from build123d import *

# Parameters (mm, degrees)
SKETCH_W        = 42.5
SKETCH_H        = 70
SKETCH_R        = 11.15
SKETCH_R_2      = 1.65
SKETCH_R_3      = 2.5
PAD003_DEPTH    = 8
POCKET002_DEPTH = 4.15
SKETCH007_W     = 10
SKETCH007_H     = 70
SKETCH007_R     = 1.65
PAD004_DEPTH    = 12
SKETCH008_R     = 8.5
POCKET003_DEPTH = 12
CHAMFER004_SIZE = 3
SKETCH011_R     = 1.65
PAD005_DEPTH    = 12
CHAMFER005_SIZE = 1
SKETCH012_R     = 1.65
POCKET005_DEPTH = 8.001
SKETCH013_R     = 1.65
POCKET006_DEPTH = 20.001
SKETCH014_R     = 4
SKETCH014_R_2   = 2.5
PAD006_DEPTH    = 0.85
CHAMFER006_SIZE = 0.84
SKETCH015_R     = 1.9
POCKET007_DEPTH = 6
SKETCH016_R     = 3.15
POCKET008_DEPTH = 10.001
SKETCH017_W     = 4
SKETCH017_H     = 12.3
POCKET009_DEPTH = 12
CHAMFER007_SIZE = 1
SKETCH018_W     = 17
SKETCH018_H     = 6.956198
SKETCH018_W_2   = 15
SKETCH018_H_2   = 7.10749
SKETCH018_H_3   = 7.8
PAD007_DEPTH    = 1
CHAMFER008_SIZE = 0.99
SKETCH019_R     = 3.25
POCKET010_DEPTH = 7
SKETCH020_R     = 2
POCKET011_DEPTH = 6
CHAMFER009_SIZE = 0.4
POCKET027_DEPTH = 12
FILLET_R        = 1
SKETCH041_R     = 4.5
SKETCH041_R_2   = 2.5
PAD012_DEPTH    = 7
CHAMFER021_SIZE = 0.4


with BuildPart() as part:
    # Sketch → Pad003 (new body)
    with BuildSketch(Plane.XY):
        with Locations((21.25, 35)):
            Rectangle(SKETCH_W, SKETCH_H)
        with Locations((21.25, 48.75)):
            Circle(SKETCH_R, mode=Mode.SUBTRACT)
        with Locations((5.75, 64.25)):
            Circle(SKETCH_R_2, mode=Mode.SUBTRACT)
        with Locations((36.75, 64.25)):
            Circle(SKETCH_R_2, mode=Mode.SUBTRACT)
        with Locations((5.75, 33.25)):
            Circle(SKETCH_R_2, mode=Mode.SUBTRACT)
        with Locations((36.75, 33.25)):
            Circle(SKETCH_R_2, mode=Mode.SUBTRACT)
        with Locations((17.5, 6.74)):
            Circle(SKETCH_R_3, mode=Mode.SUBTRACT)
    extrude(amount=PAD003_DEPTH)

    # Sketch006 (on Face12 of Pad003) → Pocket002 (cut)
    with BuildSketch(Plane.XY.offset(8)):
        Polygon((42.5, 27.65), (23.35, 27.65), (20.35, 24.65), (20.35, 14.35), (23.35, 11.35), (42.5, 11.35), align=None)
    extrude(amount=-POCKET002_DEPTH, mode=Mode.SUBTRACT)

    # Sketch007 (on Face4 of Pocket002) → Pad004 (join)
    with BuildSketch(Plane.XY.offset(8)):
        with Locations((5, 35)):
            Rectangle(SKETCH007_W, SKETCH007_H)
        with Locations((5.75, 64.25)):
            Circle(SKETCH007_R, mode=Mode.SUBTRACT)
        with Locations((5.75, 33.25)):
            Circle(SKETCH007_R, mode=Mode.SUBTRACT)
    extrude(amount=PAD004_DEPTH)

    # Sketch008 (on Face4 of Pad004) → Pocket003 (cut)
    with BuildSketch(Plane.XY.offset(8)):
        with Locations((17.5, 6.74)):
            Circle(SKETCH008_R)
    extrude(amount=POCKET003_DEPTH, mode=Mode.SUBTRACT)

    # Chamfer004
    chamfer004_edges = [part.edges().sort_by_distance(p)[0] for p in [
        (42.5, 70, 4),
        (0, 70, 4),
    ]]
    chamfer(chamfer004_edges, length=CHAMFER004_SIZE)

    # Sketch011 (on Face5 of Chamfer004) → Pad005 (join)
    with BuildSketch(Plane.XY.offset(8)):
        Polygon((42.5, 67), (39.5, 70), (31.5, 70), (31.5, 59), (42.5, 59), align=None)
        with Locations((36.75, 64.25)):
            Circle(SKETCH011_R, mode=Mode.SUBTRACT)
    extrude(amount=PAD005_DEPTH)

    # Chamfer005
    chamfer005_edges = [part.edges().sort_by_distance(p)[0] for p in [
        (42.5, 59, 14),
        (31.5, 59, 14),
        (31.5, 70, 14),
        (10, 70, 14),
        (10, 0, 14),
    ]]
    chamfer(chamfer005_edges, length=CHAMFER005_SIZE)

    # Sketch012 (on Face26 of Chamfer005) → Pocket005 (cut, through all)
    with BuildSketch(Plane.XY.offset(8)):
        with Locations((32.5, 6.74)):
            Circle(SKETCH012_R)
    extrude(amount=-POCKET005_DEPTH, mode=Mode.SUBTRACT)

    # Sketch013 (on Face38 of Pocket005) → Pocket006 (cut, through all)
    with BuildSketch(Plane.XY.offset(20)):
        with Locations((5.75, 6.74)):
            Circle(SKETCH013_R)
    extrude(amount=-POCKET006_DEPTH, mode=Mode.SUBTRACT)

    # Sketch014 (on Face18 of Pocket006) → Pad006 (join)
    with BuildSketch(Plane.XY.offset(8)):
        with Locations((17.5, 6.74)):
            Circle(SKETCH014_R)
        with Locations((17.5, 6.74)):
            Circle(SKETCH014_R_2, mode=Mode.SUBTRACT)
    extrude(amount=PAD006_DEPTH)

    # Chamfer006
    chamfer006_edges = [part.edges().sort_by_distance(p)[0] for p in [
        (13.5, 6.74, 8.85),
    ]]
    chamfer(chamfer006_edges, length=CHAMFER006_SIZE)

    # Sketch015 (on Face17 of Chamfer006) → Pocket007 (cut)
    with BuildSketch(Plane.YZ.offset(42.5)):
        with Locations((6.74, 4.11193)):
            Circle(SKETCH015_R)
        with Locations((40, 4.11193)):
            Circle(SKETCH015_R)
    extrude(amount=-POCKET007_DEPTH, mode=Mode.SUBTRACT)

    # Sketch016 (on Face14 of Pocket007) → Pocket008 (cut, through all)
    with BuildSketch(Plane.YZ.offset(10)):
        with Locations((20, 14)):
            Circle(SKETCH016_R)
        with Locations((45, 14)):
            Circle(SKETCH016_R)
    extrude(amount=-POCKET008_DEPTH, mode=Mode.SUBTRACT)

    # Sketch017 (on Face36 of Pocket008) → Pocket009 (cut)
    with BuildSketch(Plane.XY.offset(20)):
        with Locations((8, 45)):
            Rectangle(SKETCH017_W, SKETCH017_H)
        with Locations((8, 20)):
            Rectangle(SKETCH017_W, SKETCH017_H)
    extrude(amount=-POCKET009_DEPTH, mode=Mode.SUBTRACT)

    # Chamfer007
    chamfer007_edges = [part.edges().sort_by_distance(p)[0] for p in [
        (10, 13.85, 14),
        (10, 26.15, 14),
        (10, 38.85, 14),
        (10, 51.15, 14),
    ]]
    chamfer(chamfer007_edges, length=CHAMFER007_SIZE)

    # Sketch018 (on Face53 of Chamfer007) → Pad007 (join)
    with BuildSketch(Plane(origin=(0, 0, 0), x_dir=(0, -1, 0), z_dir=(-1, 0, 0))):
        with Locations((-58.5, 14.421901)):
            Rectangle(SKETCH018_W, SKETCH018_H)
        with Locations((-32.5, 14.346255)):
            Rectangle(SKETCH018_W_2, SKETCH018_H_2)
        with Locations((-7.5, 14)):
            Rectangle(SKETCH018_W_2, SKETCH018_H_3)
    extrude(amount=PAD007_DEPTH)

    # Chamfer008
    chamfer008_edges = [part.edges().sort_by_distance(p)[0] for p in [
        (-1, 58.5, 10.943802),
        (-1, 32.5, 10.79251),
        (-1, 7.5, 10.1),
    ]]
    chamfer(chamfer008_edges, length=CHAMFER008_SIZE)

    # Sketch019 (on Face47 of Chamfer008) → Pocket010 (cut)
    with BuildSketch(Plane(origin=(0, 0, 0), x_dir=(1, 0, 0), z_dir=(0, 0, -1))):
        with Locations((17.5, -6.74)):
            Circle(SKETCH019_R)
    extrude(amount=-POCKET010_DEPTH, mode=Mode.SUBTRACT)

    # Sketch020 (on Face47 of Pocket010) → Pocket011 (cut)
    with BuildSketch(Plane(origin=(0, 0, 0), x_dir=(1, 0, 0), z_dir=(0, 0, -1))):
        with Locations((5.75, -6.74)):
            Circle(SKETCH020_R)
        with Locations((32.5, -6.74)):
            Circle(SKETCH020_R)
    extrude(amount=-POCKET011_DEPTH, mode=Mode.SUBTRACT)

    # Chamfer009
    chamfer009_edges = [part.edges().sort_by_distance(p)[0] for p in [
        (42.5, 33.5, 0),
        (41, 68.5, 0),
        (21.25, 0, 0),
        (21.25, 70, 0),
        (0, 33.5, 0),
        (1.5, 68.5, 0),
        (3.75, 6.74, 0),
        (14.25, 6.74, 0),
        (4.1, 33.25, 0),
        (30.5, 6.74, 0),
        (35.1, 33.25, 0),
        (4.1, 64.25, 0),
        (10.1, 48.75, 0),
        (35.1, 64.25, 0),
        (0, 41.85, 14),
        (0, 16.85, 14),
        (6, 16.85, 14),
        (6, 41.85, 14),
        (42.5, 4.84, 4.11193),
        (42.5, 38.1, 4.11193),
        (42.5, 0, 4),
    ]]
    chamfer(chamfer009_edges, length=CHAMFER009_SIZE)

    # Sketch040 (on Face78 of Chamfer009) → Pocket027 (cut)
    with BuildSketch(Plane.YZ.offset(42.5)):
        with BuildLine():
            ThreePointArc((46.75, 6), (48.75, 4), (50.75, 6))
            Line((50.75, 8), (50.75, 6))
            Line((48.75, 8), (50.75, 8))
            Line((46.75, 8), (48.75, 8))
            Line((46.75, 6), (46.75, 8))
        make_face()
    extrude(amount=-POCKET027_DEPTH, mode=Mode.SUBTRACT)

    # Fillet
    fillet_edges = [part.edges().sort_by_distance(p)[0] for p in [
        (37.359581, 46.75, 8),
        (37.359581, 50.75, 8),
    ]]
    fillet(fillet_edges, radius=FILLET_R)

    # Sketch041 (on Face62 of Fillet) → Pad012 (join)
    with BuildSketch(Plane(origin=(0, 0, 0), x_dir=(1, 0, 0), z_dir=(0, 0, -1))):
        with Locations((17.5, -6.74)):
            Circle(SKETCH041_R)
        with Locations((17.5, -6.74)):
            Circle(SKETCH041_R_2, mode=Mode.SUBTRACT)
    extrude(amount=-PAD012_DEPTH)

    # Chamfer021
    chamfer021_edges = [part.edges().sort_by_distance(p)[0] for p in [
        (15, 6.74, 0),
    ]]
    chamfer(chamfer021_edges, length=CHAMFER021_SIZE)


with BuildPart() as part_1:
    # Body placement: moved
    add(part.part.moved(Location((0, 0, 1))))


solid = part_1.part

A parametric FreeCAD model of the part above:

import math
import FreeCAD as App
import Part
import Sketcher
from FreeCAD import Vector
Q = App.Units.Quantity


def edges_at(feature, points):
    """Names of the edges that pass closest to the given points."""
    edges = feature.Shape.Edges
    near = lambda p: min(range(len(edges)), key=lambda i: edges[i].distToShape(Part.Vertex(*p))[0])
    return sorted({f"Edge{near(p) + 1}" for p in points})

doc = App.newDocument("Part")
body = doc.addObject("PartDesign::Body", "Body")

sketch1 = body.newObject("Sketcher::SketchObject", "Sketch")
sketch1.AttachmentSupport = (doc.getObject("XY_Plane"), [""])
sketch1.MapMode = "FlatFace"
sketch1.addGeometry([
    Part.LineSegment(Vector(0, 70, 0), Vector(0, 0, 0)),
    Part.LineSegment(Vector(0, 0, 0), Vector(42.5, 0, 0)),
    Part.LineSegment(Vector(42.5, 0, 0), Vector(42.5, 70, 0)),
    Part.LineSegment(Vector(42.5, 70, 0), Vector(0, 70, 0)),
    Part.Circle(Vector(17.5, 6.74, 0), Vector(0, 0, 1), 2.5),
    Part.Circle(Vector(5.75, 33.25, 0), Vector(0, 0, 1), 1.65),
    Part.Circle(Vector(36.75, 33.25, 0), Vector(0, 0, 1), 1.65),
    Part.Circle(Vector(5.75, 64.25, 0), Vector(0, 0, 1), 1.65),
    Part.Circle(Vector(21.25, 48.75, 0), Vector(0, 0, 1), 11.15),
    Part.Circle(Vector(36.75, 64.25, 0), Vector(0, 0, 1), 1.65),
], False)
sketch1.addConstraint([
    Sketcher.Constraint("Coincident", 0, 2, 1, 1),
    Sketcher.Constraint("Coincident", 1, 2, 2, 1),
    Sketcher.Constraint("Coincident", 2, 2, 3, 1),
    Sketcher.Constraint("Coincident", 3, 2, 0, 1),
    Sketcher.Constraint("Vertical", 0),
    Sketcher.Constraint("Horizontal", 1),
    Sketcher.Constraint("Vertical", 2),
    Sketcher.Constraint("Horizontal", 3),
    Sketcher.Constraint("Coincident", 0, 2, -1, 1),
    Sketcher.Constraint("Equal", 5, 6),
    Sketcher.Constraint("Equal", 6, 7),
    Sketcher.Constraint("Equal", 7, 9),
    Sketcher.Constraint("Horizontal", 5, 3, 6, 3),
    Sketcher.Constraint("Horizontal", 7, 3, 9, 3),
    Sketcher.Constraint("Vertical", 5, 3, 7, 3),
    Sketcher.Constraint("Vertical", 6, 3, 9, 3),
    Sketcher.Constraint("Diameter", 4, Q("5 mm")),
    Sketcher.Constraint("Diameter", 5, Q("3.3 mm")),
    Sketcher.Constraint("Diameter", 8, Q("22.3 mm")),
    Sketcher.Constraint("DistanceY", 0, 2, 0, 1, Q("70 mm")),
    Sketcher.Constraint("DistanceX", 1, 1, 1, 2, Q("42.5 mm")),
    Sketcher.Constraint("DistanceX", 5, 3, 6, 3, Q("31 mm")),
    Sketcher.Constraint("DistanceY", 5, 3, 7, 3, Q("31 mm")),
    Sketcher.Constraint("DistanceX", 4, 3, 1, 2, Q("25 mm")),
    Sketcher.Constraint("DistanceX", 5, 3, 8, 3, Q("15.5 mm")),
    Sketcher.Constraint("DistanceY", 5, 3, 8, 3, Q("15.5 mm")),
    Sketcher.Constraint("DistanceY", -1, 1, 4, 3, Q("6.74 mm")),
    Sketcher.Constraint("DistanceX", -1, 1, 5, 3, Q("5.75 mm")),
    Sketcher.Constraint("DistanceY", -1, 1, 5, 3, Q("33.25 mm")),
])
pad1 = body.newObject("PartDesign::Pad", "Pad")
pad1.Profile = sketch1
pad1.Length = 8

sketch2 = body.newObject("Sketcher::SketchObject", "Sketch001")
sketch2.AttachmentSupport = (doc.getObject("XY_Plane"), [""])
sketch2.MapMode = "FlatFace"
sketch2.AttachmentOffset = App.Placement(Vector(0, 0, 8), App.Rotation())
sketch2.addGeometry([
    Part.LineSegment(Vector(42.5, 27.65, 0), Vector(23.35, 27.65, 0)),
    Part.LineSegment(Vector(23.35, 27.65, 0), Vector(20.35, 24.65, 0)),
    Part.LineSegment(Vector(20.35, 24.65, 0), Vector(20.35, 14.35, 0)),
    Part.LineSegment(Vector(20.35, 14.35, 0), Vector(23.35, 11.35, 0)),
    Part.LineSegment(Vector(23.35, 11.35, 0), Vector(42.5, 11.35, 0)),
    Part.LineSegment(Vector(42.5, 11.35, 0), Vector(42.5, 27.65, 0)),
], False)
sketch2.addConstraint([
    Sketcher.Constraint("Coincident", 0, 2, 1, 1),
    Sketcher.Constraint("Coincident", 1, 2, 2, 1),
    Sketcher.Constraint("Coincident", 2, 2, 3, 1),
    Sketcher.Constraint("Coincident", 3, 2, 4, 1),
    Sketcher.Constraint("Coincident", 4, 2, 5, 1),
    Sketcher.Constraint("Coincident", 5, 2, 0, 1),
    Sketcher.Constraint("Horizontal", 0),
    Sketcher.Constraint("Vertical", 2),
    Sketcher.Constraint("Horizontal", 4),
    Sketcher.Constraint("Vertical", 5),
    Sketcher.Constraint("Perpendicular", 1, 3),
    Sketcher.Constraint("Vertical", 0, 2, 3, 2),
    Sketcher.Constraint("Equal", 1, 3),
    Sketcher.Constraint("DistanceY", 2, 2, 2, 1, Q("10.3 mm")),
    Sketcher.Constraint("DistanceY", 5, 1, 5, 2, Q("16.3 mm")),
    Sketcher.Constraint("DistanceX", 0, 2, 0, 1, Q("19.15 mm")),
    Sketcher.Constraint("DistanceX", -1, 1, 4, 2, Q("42.5 mm")),
    Sketcher.Constraint("DistanceY", -1, 1, 0, 2, Q("27.65 mm")),
])
pocket1 = body.newObject("PartDesign::Pocket", "Pocket")
pocket1.Profile = sketch2
pocket1.Length = 4.15

sketch3 = body.newObject("Sketcher::SketchObject", "Sketch002")
sketch3.AttachmentSupport = (doc.getObject("XY_Plane"), [""])
sketch3.MapMode = "FlatFace"
sketch3.AttachmentOffset = App.Placement(Vector(0, 0, 8), App.Rotation())
sketch3.addGeometry([
    Part.LineSegment(Vector(0, 70, 0), Vector(0, 0, 0)),
    Part.LineSegment(Vector(0, 0, 0), Vector(10, 0, 0)),
    Part.LineSegment(Vector(10, 0, 0), Vector(10, 70, 0)),
    Part.LineSegment(Vector(10, 70, 0), Vector(0, 70, 0)),
    Part.Circle(Vector(5.75, 33.25, 0), Vector(0, 0, 1), 1.65),
    Part.Circle(Vector(5.75, 64.25, 0), Vector(0, 0, 1), 1.65),
], False)
sketch3.addConstraint([
    Sketcher.Constraint("Coincident", 0, 2, 1, 1),
    Sketcher.Constraint("Coincident", 1, 2, 2, 1),
    Sketcher.Constraint("Coincident", 2, 2, 3, 1),
    Sketcher.Constraint("Coincident", 3, 2, 0, 1),
    Sketcher.Constraint("Vertical", 0),
    Sketcher.Constraint("Horizontal", 1),
    Sketcher.Constraint("Vertical", 2),
    Sketcher.Constraint("Horizontal", 3),
    Sketcher.Constraint("Coincident", 0, 2, -1, 1),
    Sketcher.Constraint("Equal", 4, 5),
    Sketcher.Constraint("Vertical", 4, 3, 5, 3),
    Sketcher.Constraint("Diameter", 4, Q("3.3 mm")),
    Sketcher.Constraint("DistanceX", 1, 1, 1, 2, Q("10 mm")),
    Sketcher.Constraint("DistanceY", 0, 2, 0, 1, Q("70 mm")),
    Sketcher.Constraint("DistanceY", 4, 3, 5, 3, Q("31 mm")),
    Sketcher.Constraint("DistanceX", -1, 1, 4, 3, Q("5.75 mm")),
    Sketcher.Constraint("DistanceY", -1, 1, 4, 3, Q("33.25 mm")),
])
pad2 = body.newObject("PartDesign::Pad", "Pad001")
pad2.Profile = sketch3
pad2.Length = 12

sketch4 = body.newObject("Sketcher::SketchObject", "Sketch003")
sketch4.AttachmentSupport = (doc.getObject("XY_Plane"), [""])
sketch4.MapMode = "FlatFace"
sketch4.AttachmentOffset = App.Placement(Vector(0, 0, 8), App.Rotation())
sketch4.addGeometry(Part.Circle(Vector(17.5, 6.74, 0), Vector(0, 0, 1), 8.5), False)
sketch4.addConstraint([
    Sketcher.Constraint("Diameter", 0, Q("17 mm")),
    Sketcher.Constraint("DistanceX", -1, 1, 0, 3, Q("17.5 mm")),
    Sketcher.Constraint("DistanceY", -1, 1, 0, 3, Q("6.74 mm")),
])
pocket2 = body.newObject("PartDesign::Pocket", "Pocket001")
pocket2.Profile = sketch4
pocket2.Length = 12
pocket2.Reversed = True
doc.recompute()

chamfer = body.newObject("PartDesign::Chamfer", "Chamfer")
chamfer.Base = (pocket2, edges_at(pocket2, [(42.5, 70, 4), (0, 70, 10)]))
chamfer.Size = 3

sketch5 = body.newObject("Sketcher::SketchObject", "Sketch004")
sketch5.AttachmentSupport = (doc.getObject("XY_Plane"), [""])
sketch5.MapMode = "FlatFace"
sketch5.AttachmentOffset = App.Placement(Vector(0, 0, 8), App.Rotation())
sketch5.addGeometry([
    Part.LineSegment(Vector(42.5, 67, 0), Vector(39.5, 70, 0)),
    Part.LineSegment(Vector(39.5, 70, 0), Vector(31.5, 70, 0)),
    Part.LineSegment(Vector(31.5, 70, 0), Vector(31.5, 59, 0)),
    Part.LineSegment(Vector(31.5, 59, 0), Vector(42.5, 59, 0)),
    Part.LineSegment(Vector(42.5, 59, 0), Vector(42.5, 67, 0)),
    Part.Circle(Vector(36.75, 64.25, 0), Vector(0, 0, 1), 1.65),
], False)
sketch5.addConstraint([
    Sketcher.Constraint("Coincident", 0, 2, 1, 1),
    Sketcher.Constraint("Coincident", 1, 2, 2, 1),
    Sketcher.Constraint("Coincident", 2, 2, 3, 1),
    Sketcher.Constraint("Coincident", 3, 2, 4, 1),
    Sketcher.Constraint("Coincident", 4, 2, 0, 1),
    Sketcher.Constraint("Horizontal", 1),
    Sketcher.Constraint("Vertical", 2),
    Sketcher.Constraint("Horizontal", 3),
    Sketcher.Constraint("Vertical", 4),
    Sketcher.Constraint("Equal", 3, 2),
    Sketcher.Constraint("Equal", 1, 4),
    Sketcher.Constraint("Diameter", 5, Q("3.3 mm")),
    Sketcher.Constraint("DistanceX", 1, 2, 1, 1, Q("8 mm")),
    Sketcher.Constraint("DistanceX", 3, 1, 3, 2, Q("11 mm")),
    Sketcher.Constraint("DistanceY", -1, 1, 0, 2, Q("70 mm")),
    Sketcher.Constraint("DistanceX", -1, 1, 0, 2, Q("39.5 mm")),
    Sketcher.Constraint("DistanceX", -1, 1, 5, 3, Q("36.75 mm")),
    Sketcher.Constraint("DistanceY", -1, 1, 5, 3, Q("64.25 mm")),
])
pad3 = body.newObject("PartDesign::Pad", "Pad002")
pad3.Profile = sketch5
pad3.Length = 12
doc.recompute()

chamfer2 = body.newObject("PartDesign::Chamfer", "Chamfer001")
chamfer2.Base = (pad3, edges_at(pad3, [
    (42.5, 59, 14),
    (31.5, 59, 14),
    (31.5, 70, 14),
    (10, 70, 14),
    (10, 0, 14),
]))
chamfer2.Size = 1

sketch6 = body.newObject("Sketcher::SketchObject", "Sketch005")
sketch6.AttachmentSupport = (doc.getObject("XY_Plane"), [""])
sketch6.MapMode = "FlatFace"
sketch6.AttachmentOffset = App.Placement(Vector(0, 0, 8), App.Rotation())
sketch6.addGeometry(Part.Circle(Vector(32.5, 6.74, 0), Vector(0, 0, 1), 1.65), False)
sketch6.addConstraint([
    Sketcher.Constraint("Diameter", 0, Q("3.3 mm")),
    Sketcher.Constraint("DistanceX", -1, 1, 0, 3, Q("32.5 mm")),
    Sketcher.Constraint("DistanceY", -1, 1, 0, 3, Q("6.74 mm")),
])
pocket3 = body.newObject("PartDesign::Pocket", "Pocket002")
pocket3.Profile = sketch6
pocket3.Type = "ThroughAll"

sketch7 = body.newObject("Sketcher::SketchObject", "Sketch006")
sketch7.AttachmentSupport = (doc.getObject("XY_Plane"), [""])
sketch7.MapMode = "FlatFace"
sketch7.AttachmentOffset = App.Placement(Vector(0, 0, 20), App.Rotation())
sketch7.addGeometry(Part.Circle(Vector(5.75, 6.74, 0), Vector(0, 0, 1), 1.65), False)
sketch7.addConstraint([
    Sketcher.Constraint("Diameter", 0, Q("3.3 mm")),
    Sketcher.Constraint("DistanceX", -1, 1, 0, 3, Q("5.75 mm")),
    Sketcher.Constraint("DistanceY", -1, 1, 0, 3, Q("6.74 mm")),
])
pocket4 = body.newObject("PartDesign::Pocket", "Pocket003")
pocket4.Profile = sketch7
pocket4.Type = "ThroughAll"

sketch8 = body.newObject("Sketcher::SketchObject", "Sketch007")
sketch8.AttachmentSupport = (doc.getObject("XY_Plane"), [""])
sketch8.MapMode = "FlatFace"
sketch8.AttachmentOffset = App.Placement(Vector(0, 0, 8), App.Rotation())
sketch8.addGeometry([
    Part.Circle(Vector(17.5, 6.74, 0), Vector(0, 0, 1), 4),
    Part.Circle(Vector(17.5, 6.74, 0), Vector(0, 0, 1), 2.5),
], False)
sketch8.addConstraint([
    Sketcher.Constraint("Coincident", 1, 3, 0, 3),
    Sketcher.Constraint("Diameter", 0, Q("8 mm")),
    Sketcher.Constraint("Diameter", 1, Q("5 mm")),
    Sketcher.Constraint("DistanceX", -1, 1, 0, 3, Q("17.5 mm")),
    Sketcher.Constraint("DistanceY", -1, 1, 0, 3, Q("6.74 mm")),
])
pad4 = body.newObject("PartDesign::Pad", "Pad003")
pad4.Profile = sketch8
pad4.Length = 0.85
doc.recompute()

chamfer3 = body.newObject("PartDesign::Chamfer", "Chamfer002")
chamfer3.Base = (pad4, edges_at(pad4, [(13.5, 6.74, 8.85)]))
chamfer3.Size = 0.84

sketch9 = body.newObject("Sketcher::SketchObject", "Sketch008")
sketch9.AttachmentSupport = (doc.getObject("YZ_Plane"), [""])
sketch9.MapMode = "FlatFace"
sketch9.AttachmentOffset = App.Placement(Vector(0, 0, 42.5), App.Rotation())
sketch9.addGeometry([
    Part.Circle(Vector(6.74, 4.11193, 0), Vector(0, 0, 1), 1.9),
    Part.Circle(Vector(40, 4.11193, 0), Vector(0, 0, 1), 1.9),
], False)
sketch9.addConstraint([
    Sketcher.Constraint("Equal", 0, 1),
    Sketcher.Constraint("Horizontal", 0, 3, 1, 3),
    Sketcher.Constraint("Diameter", 0, Q("3.8 mm")),
    Sketcher.Constraint("DistanceX", -1, 1, 1, 3, Q("40 mm")),
    Sketcher.Constraint("DistanceX", -1, 1, 0, 3, Q("6.74 mm")),
    Sketcher.Constraint("DistanceY", -1, 1, 0, 3, Q("4.11193 mm")),
])
pocket5 = body.newObject("PartDesign::Pocket", "Pocket004")
pocket5.Profile = sketch9
pocket5.Length = 6

sketch10 = body.newObject("Sketcher::SketchObject", "Sketch009")
sketch10.AttachmentSupport = (doc.getObject("YZ_Plane"), [""])
sketch10.MapMode = "FlatFace"
sketch10.AttachmentOffset = App.Placement(Vector(0, 0, 10), App.Rotation())
sketch10.addGeometry([
    Part.Circle(Vector(20, 14, 0), Vector(0, 0, 1), 3.15),
    Part.Circle(Vector(45, 14, 0), Vector(0, 0, 1), 3.15),
], False)
sketch10.addConstraint([
    Sketcher.Constraint("Equal", 0, 1),
    Sketcher.Constraint("Horizontal", 0, 3, 1, 3),
    Sketcher.Constraint("Diameter", 0, Q("6.3 mm")),
    Sketcher.Constraint("DistanceX", -1, 1, 0, 3, Q("20 mm")),
    Sketcher.Constraint("DistanceY", -1, 1, 0, 3, Q("14 mm")),
    Sketcher.Constraint("DistanceX", -1, 1, 1, 3, Q("45 mm")),
])
pocket6 = body.newObject("PartDesign::Pocket", "Pocket005")
pocket6.Profile = sketch10
pocket6.Type = "ThroughAll"

sketch11 = body.newObject("Sketcher::SketchObject", "Sketch010")
sketch11.AttachmentSupport = (doc.getObject("XY_Plane"), [""])
sketch11.MapMode = "FlatFace"
sketch11.AttachmentOffset = App.Placement(Vector(0, 0, 20), App.Rotation())
sketch11.addGeometry([
    Part.LineSegment(Vector(6, 51.15, 0), Vector(6, 38.85, 0)),
    Part.LineSegment(Vector(6, 38.85, 0), Vector(10, 38.85, 0)),
    Part.LineSegment(Vector(10, 38.85, 0), Vector(10, 51.15, 0)),
    Part.LineSegment(Vector(10, 51.15, 0), Vector(6, 51.15, 0)),
    Part.LineSegment(Vector(6, 26.15, 0), Vector(6, 13.85, 0)),
    Part.LineSegment(Vector(6, 13.85, 0), Vector(10, 13.85, 0)),
    Part.LineSegment(Vector(10, 13.85, 0), Vector(10, 26.15, 0)),
    Part.LineSegment(Vector(10, 26.15, 0), Vector(6, 26.15, 0)),
], False)
sketch11.addConstraint([
    Sketcher.Constraint("Coincident", 0, 2, 1, 1),
    Sketcher.Constraint("Coincident", 1, 2, 2, 1),
    Sketcher.Constraint("Coincident", 2, 2, 3, 1),
    Sketcher.Constraint("Coincident", 3, 2, 0, 1),
    Sketcher.Constraint("Coincident", 4, 2, 5, 1),
    Sketcher.Constraint("Coincident", 5, 2, 6, 1),
    Sketcher.Constraint("Coincident", 6, 2, 7, 1),
    Sketcher.Constraint("Coincident", 7, 2, 4, 1),
    Sketcher.Constraint("Vertical", 0),
    Sketcher.Constraint("Horizontal", 1),
    Sketcher.Constraint("Vertical", 2),
    Sketcher.Constraint("Horizontal", 3),
    Sketcher.Constraint("Vertical", 4),
    Sketcher.Constraint("Horizontal", 5),
    Sketcher.Constraint("Vertical", 6),
    Sketcher.Constraint("Horizontal", 7),
    Sketcher.Constraint("Vertical", 3, 2, 4, 2),
    Sketcher.Constraint("Vertical", 2, 2, 5, 2),
    Sketcher.Constraint("Equal", 2, 4),
    Sketcher.Constraint("DistanceX", 1, 1, 1, 2, Q("4 mm")),
    Sketcher.Constraint("DistanceY", 0, 2, 0, 1, Q("12.3 mm")),
    Sketcher.Constraint("DistanceX", -1, 1, 0, 2, Q("6 mm")),
    Sketcher.Constraint("DistanceY", 4, 2, 0, 2, Q("25 mm")),
    Sketcher.Constraint("DistanceY", -1, 1, 0, 2, Q("38.85 mm")),
])
pocket7 = body.newObject("PartDesign::Pocket", "Pocket006")
pocket7.Profile = sketch11
pocket7.Length = 12
doc.recompute()

chamfer4 = body.newObject("PartDesign::Chamfer", "Chamfer003")
chamfer4.Base = (pocket7, edges_at(pocket7, [
    (10, 13.85, 14),
    (10, 26.15, 14),
    (10, 38.85, 14),
    (10, 51.15, 14),
]))
chamfer4.Size = 1

sketch12 = body.newObject("Sketcher::SketchObject", "Sketch011")
sketch12.AttachmentSupport = (doc.getObject("YZ_Plane"), [""])
sketch12.MapMode = "FlatFace"
sketch12.addGeometry([
    Part.LineSegment(Vector(67, 17.9, 0), Vector(67, 10.943802, 0)),
    Part.LineSegment(Vector(67, 10.943802, 0), Vector(50, 10.943802, 0)),
    Part.LineSegment(Vector(50, 10.943802, 0), Vector(50, 17.9, 0)),
    Part.LineSegment(Vector(50, 17.9, 0), Vector(67, 17.9, 0)),
    Part.LineSegment(Vector(40, 17.9, 0), Vector(40, 10.79251, 0)),
    Part.LineSegment(Vector(40, 10.79251, 0), Vector(25, 10.79251, 0)),
    Part.LineSegment(Vector(25, 10.79251, 0), Vector(25, 17.9, 0)),
    Part.LineSegment(Vector(25, 17.9, 0), Vector(40, 17.9, 0)),
    Part.LineSegment(Vector(15, 17.9, 0), Vector(15, 10.1, 0)),
    Part.LineSegment(Vector(15, 10.1, 0), Vector(0, 10.1, 0)),
    Part.LineSegment(Vector(0, 10.1, 0), Vector(0, 17.9, 0)),
    Part.LineSegment(Vector(0, 17.9, 0), Vector(15, 17.9, 0)),
], False)
sketch12.addConstraint([
    Sketcher.Constraint("Coincident", 0, 2, 1, 1),
    Sketcher.Constraint("Coincident", 1, 2, 2, 1),
    Sketcher.Constraint("Coincident", 2, 2, 3, 1),
    Sketcher.Constraint("Coincident", 3, 2, 0, 1),
    Sketcher.Constraint("Coincident", 4, 2, 5, 1),
    Sketcher.Constraint("Coincident", 5, 2, 6, 1),
    Sketcher.Constraint("Coincident", 6, 2, 7, 1),
    Sketcher.Constraint("Coincident", 7, 2, 4, 1),
    Sketcher.Constraint("Coincident", 8, 2, 9, 1),
    Sketcher.Constraint("Coincident", 9, 2, 10, 1),
    Sketcher.Constraint("Coincident", 10, 2, 11, 1),
    Sketcher.Constraint("Coincident", 11, 2, 8, 1),
    Sketcher.Constraint("Vertical", 0),
    Sketcher.Constraint("Horizontal", 1),
    Sketcher.Constraint("Vertical", 2),
    Sketcher.Constraint("Horizontal", 3),
    Sketcher.Constraint("Vertical", 4),
    Sketcher.Constraint("Horizontal", 5),
    Sketcher.Constraint("Vertical", 6),
    Sketcher.Constraint("Horizontal", 7),
    Sketcher.Constraint("Vertical", 8),
    Sketcher.Constraint("Horizontal", 9),
    Sketcher.Constraint("Vertical", 10),
    Sketcher.Constraint("Horizontal", 11),
    Sketcher.Constraint("PointOnObject", 9, 2, -2),
    Sketcher.Constraint("Horizontal", 3, 2, 6, 2),
    Sketcher.Constraint("Horizontal", 7, 2, 10, 2),
    Sketcher.Constraint("Equal", 7, 9),
    Sketcher.Constraint("DistanceX", 1, 2, 1, 1, Q("17 mm")),
    Sketcher.Constraint("DistanceX", 5, 2, 5, 1, Q("15 mm")),
    Sketcher.Constraint("DistanceY", 8, 2, 8, 1, Q("7.8 mm")),
    Sketcher.Constraint("DistanceX", -1, 1, 0, 2, Q("67 mm")),
    Sketcher.Constraint("DistanceX", -1, 1, 4, 2, Q("40 mm")),
    Sketcher.Constraint("DistanceY", -1, 1, 2, 2, Q("17.9 mm")),
    Sketcher.Constraint("DistanceY", 4, 2, 4, 1, Q("7.10749 mm")),
    Sketcher.Constraint("DistanceY", 0, 2, 0, 1, Q("6.956198 mm")),
])
pad5 = body.newObject("PartDesign::Pad", "Pad004")
pad5.Profile = sketch12
pad5.Length = 1
pad5.Reversed = True
doc.recompute()

chamfer5 = body.newObject("PartDesign::Chamfer", "Chamfer004")
chamfer5.Base = (pad5, edges_at(pad5, [(-1, 58.5, 10.944), (-1, 32.5, 10.793), (-1, 7.5, 10.1)]))
chamfer5.Size = 0.99

sketch13 = body.newObject("Sketcher::SketchObject", "Sketch012")
sketch13.AttachmentSupport = (doc.getObject("XY_Plane"), [""])
sketch13.MapMode = "FlatFace"
sketch13.addGeometry(Part.Circle(Vector(17.5, 6.74, 0), Vector(0, 0, 1), 3.25), False)
sketch13.addConstraint([
    Sketcher.Constraint("Diameter", 0, Q("6.5 mm")),
    Sketcher.Constraint("DistanceX", -1, 1, 0, 3, Q("17.5 mm")),
    Sketcher.Constraint("DistanceY", -1, 1, 0, 3, Q("6.74 mm")),
])
pocket8 = body.newObject("PartDesign::Pocket", "Pocket007")
pocket8.Profile = sketch13
pocket8.Length = 7
pocket8.Reversed = True

sketch14 = body.newObject("Sketcher::SketchObject", "Sketch013")
sketch14.AttachmentSupport = (doc.getObject("XY_Plane"), [""])
sketch14.MapMode = "FlatFace"
sketch14.addGeometry([
    Part.Circle(Vector(5.75, 6.74, 0), Vector(0, 0, 1), 2),
    Part.Circle(Vector(32.5, 6.74, 0), Vector(0, 0, 1), 2),
], False)
sketch14.addConstraint([
    Sketcher.Constraint("Equal", 0, 1),
    Sketcher.Constraint("Horizontal", 0, 3, 1, 3),
    Sketcher.Constraint("Diameter", 0, Q("4 mm")),
    Sketcher.Constraint("DistanceX", -1, 1, 1, 3, Q("32.5 mm")),
    Sketcher.Constraint("DistanceX", -1, 1, 0, 3, Q("5.75 mm")),
    Sketcher.Constraint("DistanceY", -1, 1, 0, 3, Q("6.74 mm")),
])
pocket9 = body.newObject("PartDesign::Pocket", "Pocket008")
pocket9.Profile = sketch14
pocket9.Length = 6
pocket9.Reversed = True
doc.recompute()

chamfer6 = body.newObject("PartDesign::Chamfer", "Chamfer005")
chamfer6.Base = (pocket9, edges_at(pocket9, [
    (42.5, 33.5, 0),
    (41, 68.5, 0),
    (21.25, 0, 0),
    (21.25, 70, 0),
    (0, 33.5, 0),
    (1.5, 68.5, 0),
    (3.75, 6.74, 0),
    (14.25, 6.74, 0),
    (4.1, 33.25, 0),
    (30.5, 6.74, 0),
    (35.1, 33.25, 0),
    (4.1, 64.25, 0),
    (10.1, 48.75, 0),
    (35.1, 64.25, 0),
    (0, 41.85, 14),
    (0, 16.85, 14),
    (6, 16.85, 14),
    (6, 41.85, 14),
    (42.5, 4.84, 4.112),
    (42.5, 38.1, 4.112),
    (42.5, 0, 4),
]))
chamfer6.Size = 0.4

sketch15 = body.newObject("Sketcher::SketchObject", "Sketch014")
sketch15.AttachmentSupport = (doc.getObject("YZ_Plane"), [""])
sketch15.MapMode = "FlatFace"
sketch15.AttachmentOffset = App.Placement(Vector(0, 0, 42.5), App.Rotation())
sketch15.addGeometry([
    Part.ArcOfCircle(Part.Circle(Vector(48.75, 6, 0), Vector(0, 0, 1), 2), math.radians(180), math.radians(360)),
    Part.LineSegment(Vector(50.75, 6, 0), Vector(50.75, 8, 0)),
    Part.LineSegment(Vector(50.75, 8, 0), Vector(46.75, 8, 0)),
    Part.LineSegment(Vector(46.75, 8, 0), Vector(46.75, 6, 0)),
], False)
sketch15.addConstraint([
    Sketcher.Constraint("Tangent", 0, 2, 1, 1),
    Sketcher.Constraint("Coincident", 1, 2, 2, 1),
    Sketcher.Constraint("Coincident", 2, 2, 3, 1),
    Sketcher.Constraint("Tangent", 3, 2, 0, 1),
    Sketcher.Constraint("Vertical", 1),
    Sketcher.Constraint("Horizontal", 2),
    Sketcher.Constraint("Vertical", 3),
    Sketcher.Constraint("Radius", 0, Q("2 mm")),
    Sketcher.Constraint("DistanceY", 1, 1, 1, 2, Q("2 mm")),
    Sketcher.Constraint("DistanceY", -1, 1, 0, 3, Q("6 mm")),
    Sketcher.Constraint("DistanceX", -1, 1, 0, 3, Q("48.75 mm")),
])
pocket10 = body.newObject("PartDesign::Pocket", "Pocket009")
pocket10.Profile = sketch15
pocket10.Length = 12
doc.recompute()

fillet = body.newObject("PartDesign::Fillet", "Fillet")
fillet.Base = (pocket10, edges_at(pocket10, [(37.36, 46.75, 8), (37.36, 50.75, 8)]))
fillet.Radius = 1

sketch16 = body.newObject("Sketcher::SketchObject", "Sketch015")
sketch16.AttachmentSupport = (doc.getObject("XY_Plane"), [""])
sketch16.MapMode = "FlatFace"
sketch16.addGeometry([
    Part.Circle(Vector(17.5, 6.74, 0), Vector(0, 0, 1), 4.5),
    Part.Circle(Vector(17.5, 6.74, 0), Vector(0, 0, 1), 2.5),
], False)
sketch16.addConstraint([
    Sketcher.Constraint("Coincident", 1, 3, 0, 3),
    Sketcher.Constraint("Diameter", 0, Q("9 mm")),
    Sketcher.Constraint("Diameter", 1, Q("5 mm")),
    Sketcher.Constraint("DistanceX", -1, 1, 0, 3, Q("17.5 mm")),
    Sketcher.Constraint("DistanceY", -1, 1, 0, 3, Q("6.74 mm")),
])
pad6 = body.newObject("PartDesign::Pad", "Pad005")
pad6.Profile = sketch16
pad6.Length = 7
doc.recompute()

chamfer7 = body.newObject("PartDesign::Chamfer", "Chamfer006")
chamfer7.Base = (pad6, edges_at(pad6, [(15, 6.74, 0)]))
chamfer7.Size = 0.4
body2 = doc.addObject("PartDesign::Body", "Body001")
doc.recompute()

body.Placement = App.Placement(Vector(0, 0, 1), App.Rotation(Vector(0, 0, 1), 0))
boolean = body2.newObject("PartDesign::Boolean", "Boolean")
boolean.Type = "Fuse"
boolean.addObjects([body])

doc.recompute()
